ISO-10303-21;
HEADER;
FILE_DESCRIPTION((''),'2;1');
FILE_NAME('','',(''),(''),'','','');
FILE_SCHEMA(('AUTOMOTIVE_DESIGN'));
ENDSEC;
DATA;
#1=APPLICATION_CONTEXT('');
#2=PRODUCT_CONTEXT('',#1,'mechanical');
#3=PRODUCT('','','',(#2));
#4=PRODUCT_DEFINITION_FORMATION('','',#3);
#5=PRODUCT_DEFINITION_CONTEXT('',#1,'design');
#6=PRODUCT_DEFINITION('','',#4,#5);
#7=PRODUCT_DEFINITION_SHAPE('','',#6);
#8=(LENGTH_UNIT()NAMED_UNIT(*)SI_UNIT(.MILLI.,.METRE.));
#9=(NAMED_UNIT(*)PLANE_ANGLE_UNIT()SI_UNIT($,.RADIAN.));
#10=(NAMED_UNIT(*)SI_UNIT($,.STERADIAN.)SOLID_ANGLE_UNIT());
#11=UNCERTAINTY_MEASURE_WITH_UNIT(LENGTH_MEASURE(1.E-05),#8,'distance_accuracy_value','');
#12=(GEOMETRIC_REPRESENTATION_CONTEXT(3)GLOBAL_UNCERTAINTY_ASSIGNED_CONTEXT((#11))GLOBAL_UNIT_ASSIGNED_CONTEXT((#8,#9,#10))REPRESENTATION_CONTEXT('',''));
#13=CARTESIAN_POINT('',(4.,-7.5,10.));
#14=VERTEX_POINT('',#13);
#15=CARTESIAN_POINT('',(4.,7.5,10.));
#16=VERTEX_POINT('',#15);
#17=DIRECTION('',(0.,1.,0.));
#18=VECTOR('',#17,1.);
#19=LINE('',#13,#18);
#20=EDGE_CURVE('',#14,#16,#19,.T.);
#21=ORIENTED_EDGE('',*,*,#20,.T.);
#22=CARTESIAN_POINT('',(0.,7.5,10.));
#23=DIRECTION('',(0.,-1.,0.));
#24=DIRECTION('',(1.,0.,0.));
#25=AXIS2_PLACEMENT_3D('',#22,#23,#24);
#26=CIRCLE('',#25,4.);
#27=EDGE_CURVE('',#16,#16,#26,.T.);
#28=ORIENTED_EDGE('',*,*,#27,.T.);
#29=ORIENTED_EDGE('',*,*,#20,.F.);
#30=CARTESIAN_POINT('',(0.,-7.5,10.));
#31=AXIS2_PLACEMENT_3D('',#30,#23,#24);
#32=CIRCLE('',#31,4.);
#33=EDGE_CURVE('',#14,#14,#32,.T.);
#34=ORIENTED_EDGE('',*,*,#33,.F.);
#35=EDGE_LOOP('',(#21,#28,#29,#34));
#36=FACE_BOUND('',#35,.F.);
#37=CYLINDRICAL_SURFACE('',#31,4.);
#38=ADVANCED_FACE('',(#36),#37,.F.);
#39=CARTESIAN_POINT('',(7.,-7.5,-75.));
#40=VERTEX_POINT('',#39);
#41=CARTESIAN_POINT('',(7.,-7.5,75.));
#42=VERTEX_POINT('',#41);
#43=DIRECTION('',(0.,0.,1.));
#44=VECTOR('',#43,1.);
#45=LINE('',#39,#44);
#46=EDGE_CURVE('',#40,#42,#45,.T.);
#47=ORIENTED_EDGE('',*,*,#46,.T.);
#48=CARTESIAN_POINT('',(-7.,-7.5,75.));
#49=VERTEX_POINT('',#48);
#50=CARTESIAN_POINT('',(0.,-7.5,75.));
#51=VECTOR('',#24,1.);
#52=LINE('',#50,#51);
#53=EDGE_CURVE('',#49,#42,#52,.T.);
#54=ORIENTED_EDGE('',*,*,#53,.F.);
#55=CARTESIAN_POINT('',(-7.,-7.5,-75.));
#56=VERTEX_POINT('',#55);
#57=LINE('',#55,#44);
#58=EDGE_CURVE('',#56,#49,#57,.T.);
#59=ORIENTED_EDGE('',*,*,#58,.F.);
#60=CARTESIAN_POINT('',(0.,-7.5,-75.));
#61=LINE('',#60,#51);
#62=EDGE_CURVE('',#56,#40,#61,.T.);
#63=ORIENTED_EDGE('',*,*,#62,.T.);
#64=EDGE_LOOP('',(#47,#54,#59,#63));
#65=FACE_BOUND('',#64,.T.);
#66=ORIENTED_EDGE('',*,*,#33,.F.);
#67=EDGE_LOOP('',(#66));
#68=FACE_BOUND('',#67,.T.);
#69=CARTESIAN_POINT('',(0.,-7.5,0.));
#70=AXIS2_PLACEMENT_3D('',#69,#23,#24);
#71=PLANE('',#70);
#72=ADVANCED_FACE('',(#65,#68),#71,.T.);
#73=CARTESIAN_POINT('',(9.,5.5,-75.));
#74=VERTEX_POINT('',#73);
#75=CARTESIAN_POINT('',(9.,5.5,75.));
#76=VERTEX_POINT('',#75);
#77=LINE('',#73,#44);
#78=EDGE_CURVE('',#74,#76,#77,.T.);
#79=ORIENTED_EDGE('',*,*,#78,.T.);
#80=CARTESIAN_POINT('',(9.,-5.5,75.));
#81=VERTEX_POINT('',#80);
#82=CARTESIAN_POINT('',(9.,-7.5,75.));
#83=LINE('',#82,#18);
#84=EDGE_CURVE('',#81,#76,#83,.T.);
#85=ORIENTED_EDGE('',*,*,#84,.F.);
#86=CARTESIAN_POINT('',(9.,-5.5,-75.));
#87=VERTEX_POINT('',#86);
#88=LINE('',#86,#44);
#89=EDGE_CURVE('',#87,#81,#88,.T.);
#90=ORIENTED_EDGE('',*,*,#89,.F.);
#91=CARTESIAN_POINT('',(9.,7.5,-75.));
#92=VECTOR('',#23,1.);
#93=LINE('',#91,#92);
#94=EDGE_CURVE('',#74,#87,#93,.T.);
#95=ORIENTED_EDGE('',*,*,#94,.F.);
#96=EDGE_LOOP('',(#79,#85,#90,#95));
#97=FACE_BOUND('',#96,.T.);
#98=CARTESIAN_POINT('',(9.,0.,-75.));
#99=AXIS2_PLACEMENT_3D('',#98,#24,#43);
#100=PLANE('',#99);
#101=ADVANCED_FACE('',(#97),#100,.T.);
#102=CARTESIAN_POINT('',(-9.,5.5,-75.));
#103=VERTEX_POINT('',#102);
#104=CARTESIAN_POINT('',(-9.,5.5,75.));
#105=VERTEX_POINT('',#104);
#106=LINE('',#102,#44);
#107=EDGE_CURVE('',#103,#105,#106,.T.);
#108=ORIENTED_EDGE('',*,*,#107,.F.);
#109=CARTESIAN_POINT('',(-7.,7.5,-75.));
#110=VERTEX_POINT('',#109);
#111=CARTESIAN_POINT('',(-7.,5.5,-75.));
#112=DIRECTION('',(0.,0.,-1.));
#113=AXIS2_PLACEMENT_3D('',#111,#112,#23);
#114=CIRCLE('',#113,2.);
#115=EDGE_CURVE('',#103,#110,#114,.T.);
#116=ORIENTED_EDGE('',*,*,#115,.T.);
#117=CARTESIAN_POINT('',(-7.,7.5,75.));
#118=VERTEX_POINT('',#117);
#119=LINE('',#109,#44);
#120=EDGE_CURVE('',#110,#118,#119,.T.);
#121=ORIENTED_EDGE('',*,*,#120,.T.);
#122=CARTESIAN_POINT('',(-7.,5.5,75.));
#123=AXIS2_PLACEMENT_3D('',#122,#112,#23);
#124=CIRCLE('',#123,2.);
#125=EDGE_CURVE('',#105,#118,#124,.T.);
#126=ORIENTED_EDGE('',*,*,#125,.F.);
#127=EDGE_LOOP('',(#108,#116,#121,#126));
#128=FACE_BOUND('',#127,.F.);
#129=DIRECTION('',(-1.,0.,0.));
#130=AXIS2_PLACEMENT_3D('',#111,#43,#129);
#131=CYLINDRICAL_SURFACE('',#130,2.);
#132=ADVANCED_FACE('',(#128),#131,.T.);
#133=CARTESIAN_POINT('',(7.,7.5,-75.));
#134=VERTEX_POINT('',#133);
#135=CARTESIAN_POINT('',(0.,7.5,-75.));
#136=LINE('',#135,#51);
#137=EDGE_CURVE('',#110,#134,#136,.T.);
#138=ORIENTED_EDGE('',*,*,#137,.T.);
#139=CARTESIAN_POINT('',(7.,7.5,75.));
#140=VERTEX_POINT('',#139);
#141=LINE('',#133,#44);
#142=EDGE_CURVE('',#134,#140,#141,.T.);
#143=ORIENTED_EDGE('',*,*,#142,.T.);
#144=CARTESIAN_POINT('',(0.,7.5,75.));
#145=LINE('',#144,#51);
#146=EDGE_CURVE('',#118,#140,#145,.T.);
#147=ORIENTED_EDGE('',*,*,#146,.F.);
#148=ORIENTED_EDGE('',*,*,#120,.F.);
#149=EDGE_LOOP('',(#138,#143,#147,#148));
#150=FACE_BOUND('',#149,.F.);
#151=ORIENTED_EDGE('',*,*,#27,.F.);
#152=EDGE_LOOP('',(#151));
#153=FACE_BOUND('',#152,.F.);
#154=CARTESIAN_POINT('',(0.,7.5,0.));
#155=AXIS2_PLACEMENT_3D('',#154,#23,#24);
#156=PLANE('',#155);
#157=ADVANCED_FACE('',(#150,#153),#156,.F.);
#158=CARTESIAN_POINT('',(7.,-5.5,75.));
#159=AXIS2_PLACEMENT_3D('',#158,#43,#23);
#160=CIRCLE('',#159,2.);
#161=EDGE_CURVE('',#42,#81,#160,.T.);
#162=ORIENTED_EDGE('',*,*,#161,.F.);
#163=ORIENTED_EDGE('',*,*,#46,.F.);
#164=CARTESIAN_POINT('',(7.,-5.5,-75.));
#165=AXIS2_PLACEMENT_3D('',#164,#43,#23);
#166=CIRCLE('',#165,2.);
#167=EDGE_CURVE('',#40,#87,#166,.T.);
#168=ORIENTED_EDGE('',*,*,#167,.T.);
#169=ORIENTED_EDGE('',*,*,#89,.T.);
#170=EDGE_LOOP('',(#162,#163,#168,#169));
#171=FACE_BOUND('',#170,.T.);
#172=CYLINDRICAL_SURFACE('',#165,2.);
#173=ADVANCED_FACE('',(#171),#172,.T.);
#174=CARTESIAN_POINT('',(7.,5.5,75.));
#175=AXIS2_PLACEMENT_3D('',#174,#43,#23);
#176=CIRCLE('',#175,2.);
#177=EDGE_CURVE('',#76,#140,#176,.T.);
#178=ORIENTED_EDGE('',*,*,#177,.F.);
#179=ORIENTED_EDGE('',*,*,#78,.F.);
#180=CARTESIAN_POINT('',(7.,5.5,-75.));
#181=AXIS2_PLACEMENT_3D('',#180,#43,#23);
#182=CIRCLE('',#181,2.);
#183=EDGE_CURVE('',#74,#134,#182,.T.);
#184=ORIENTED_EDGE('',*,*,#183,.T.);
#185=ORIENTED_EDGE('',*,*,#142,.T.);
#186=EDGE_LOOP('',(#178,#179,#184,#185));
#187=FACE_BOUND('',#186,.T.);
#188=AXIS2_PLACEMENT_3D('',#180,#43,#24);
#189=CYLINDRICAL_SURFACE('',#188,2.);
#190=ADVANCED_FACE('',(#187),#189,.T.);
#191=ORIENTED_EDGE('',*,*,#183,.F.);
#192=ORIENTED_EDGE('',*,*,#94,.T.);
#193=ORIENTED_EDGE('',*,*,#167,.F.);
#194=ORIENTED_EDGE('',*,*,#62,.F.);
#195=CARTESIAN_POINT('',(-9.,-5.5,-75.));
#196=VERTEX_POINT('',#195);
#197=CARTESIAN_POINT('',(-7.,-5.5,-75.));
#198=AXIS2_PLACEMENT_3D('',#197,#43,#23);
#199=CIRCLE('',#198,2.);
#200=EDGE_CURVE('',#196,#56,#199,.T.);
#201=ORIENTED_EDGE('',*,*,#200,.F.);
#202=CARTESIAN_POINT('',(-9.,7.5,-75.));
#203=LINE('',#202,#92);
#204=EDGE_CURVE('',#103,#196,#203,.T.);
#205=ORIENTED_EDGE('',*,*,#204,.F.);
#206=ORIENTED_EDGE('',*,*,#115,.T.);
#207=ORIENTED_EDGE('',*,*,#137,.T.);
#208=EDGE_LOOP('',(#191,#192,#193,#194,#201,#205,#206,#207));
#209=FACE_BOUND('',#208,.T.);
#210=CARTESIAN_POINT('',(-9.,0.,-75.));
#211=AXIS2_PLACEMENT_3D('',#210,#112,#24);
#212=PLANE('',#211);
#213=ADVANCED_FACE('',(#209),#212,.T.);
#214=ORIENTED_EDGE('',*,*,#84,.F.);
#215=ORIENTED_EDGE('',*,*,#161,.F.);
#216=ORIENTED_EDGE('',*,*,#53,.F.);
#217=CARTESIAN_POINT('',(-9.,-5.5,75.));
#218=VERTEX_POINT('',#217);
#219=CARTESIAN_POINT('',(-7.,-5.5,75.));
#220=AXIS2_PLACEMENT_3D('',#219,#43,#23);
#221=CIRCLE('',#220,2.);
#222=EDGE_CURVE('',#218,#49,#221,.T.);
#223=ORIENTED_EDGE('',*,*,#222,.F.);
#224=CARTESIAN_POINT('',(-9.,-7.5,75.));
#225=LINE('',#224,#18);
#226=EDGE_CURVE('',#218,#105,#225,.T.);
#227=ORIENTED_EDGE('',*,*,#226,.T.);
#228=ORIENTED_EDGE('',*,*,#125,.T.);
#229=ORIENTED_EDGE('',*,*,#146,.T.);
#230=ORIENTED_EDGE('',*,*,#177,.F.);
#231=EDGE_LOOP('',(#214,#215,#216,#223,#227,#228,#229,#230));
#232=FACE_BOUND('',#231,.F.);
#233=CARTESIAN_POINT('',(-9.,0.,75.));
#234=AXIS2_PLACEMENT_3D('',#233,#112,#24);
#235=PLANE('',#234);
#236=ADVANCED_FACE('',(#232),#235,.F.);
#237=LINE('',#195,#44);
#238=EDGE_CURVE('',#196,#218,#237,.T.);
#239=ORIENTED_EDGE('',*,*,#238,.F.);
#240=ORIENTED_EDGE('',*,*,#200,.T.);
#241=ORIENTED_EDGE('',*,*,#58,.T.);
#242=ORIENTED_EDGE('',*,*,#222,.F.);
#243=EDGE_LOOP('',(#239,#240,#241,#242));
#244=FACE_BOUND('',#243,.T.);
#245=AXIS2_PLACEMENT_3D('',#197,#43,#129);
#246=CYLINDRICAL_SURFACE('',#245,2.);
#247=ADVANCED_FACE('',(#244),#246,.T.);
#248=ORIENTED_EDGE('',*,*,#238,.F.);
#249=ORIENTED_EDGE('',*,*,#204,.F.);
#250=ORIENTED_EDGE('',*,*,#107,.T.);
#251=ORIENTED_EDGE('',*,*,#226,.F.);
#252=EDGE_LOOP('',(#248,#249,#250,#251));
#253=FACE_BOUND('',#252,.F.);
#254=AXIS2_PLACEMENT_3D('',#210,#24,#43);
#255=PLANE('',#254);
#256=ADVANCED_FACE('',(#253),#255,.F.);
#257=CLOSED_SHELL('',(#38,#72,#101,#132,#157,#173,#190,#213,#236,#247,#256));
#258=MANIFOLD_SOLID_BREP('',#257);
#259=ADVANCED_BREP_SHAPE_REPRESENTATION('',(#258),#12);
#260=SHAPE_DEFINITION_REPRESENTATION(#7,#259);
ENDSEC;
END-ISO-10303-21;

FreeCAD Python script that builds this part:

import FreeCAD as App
import Part
import Sketcher
Q = App.Units.Quantity


def edges_at(feature, points):
    """Names of the edges that pass closest to the given points."""
    edges = feature.Shape.Edges
    near = lambda p: min(range(len(edges)), key=lambda i: edges[i].distToShape(Part.Vertex(*p))[0])
    return sorted({f"Edge{near(p) + 1}" for p in points})


def add_polygon(sketch, points):
    """Adds a closed chain of lines whose ends are joined by coincident constraints."""
    first, n = sketch.GeometryCount, len(points)
    for a, b in zip(points, points[1:] + points[:1]):
        sketch.addGeometry(Part.LineSegment(App.Vector(*a, 0), App.Vector(*b, 0)), False)
    for i in range(n):
        sketch.addConstraint(Sketcher.Constraint("Coincident", first + i, 2, first + (i + 1) % n, 1))

doc = App.newDocument("Part")
body = doc.addObject("PartDesign::Body", "Body")

# Sketch on XZ plane
sketch1 = doc.addObject("Sketcher::SketchObject", "Sketch")
body.addObject(sketch1)
sketch1.AttachmentSupport = (doc.XZ_Plane, [""])
sketch1.MapMode = "FlatFace"
add_polygon(sketch1, [(-9, 75), (-9, -75), (9, -75), (9, 75)])  # lines 0-3
sketch1.addConstraint([
    Sketcher.Constraint("Vertical", 0),
    Sketcher.Constraint("Horizontal", 1),
    Sketcher.Constraint("Vertical", 2),
    Sketcher.Constraint("Horizontal", 3),
    Sketcher.Constraint("Symmetric", 0, 2, 2, 2, -1, 1),
    Sketcher.Constraint("DistanceX", 1, 1, 1, 2, Q("18 mm")),
    Sketcher.Constraint("DistanceY", 0, 2, 0, 1, Q("150 mm")),
])
pad1 = doc.addObject("PartDesign::Pad", "Pad")
body.addObject(pad1)
pad1.Profile = sketch1
pad1.Length = 15
pad1.Midplane = True
doc.recompute()

fillet = doc.addObject("PartDesign::Fillet", "Fillet")
body.addObject(fillet)
fillet.Base = (pad1, edges_at(pad1, [
    (-9, -7.5, 0),
    (9, -7.5, 0),
    (9, 7.5, 0),
    (-9, 7.5, 0),
]))
fillet.Radius = 2

# Sketch on XZ plane
sketch2 = doc.addObject("Sketcher::SketchObject", "Sketch001")
body.addObject(sketch2)
sketch2.AttachmentSupport = (doc.XZ_Plane, [""])
sketch2.MapMode = "FlatFace"
sketch2.AttachmentOffset = App.Placement(App.Vector(0, 0, 7.5), App.Rotation())
sketch2.addGeometry(Part.Circle(App.Vector(0, 10, 0), App.Vector(0, 0, 1), 4), False)
sketch2.addConstraint([
    Sketcher.Constraint("PointOnObject", 0, 3, -2),
    Sketcher.Constraint("Diameter", 0, Q("8 mm")),
    Sketcher.Constraint("DistanceY", -1, 1, 0, 3, Q("10 mm")),
])
pocket1 = doc.addObject("PartDesign::Pocket", "Pocket")
body.addObject(pocket1)
pocket1.Profile = sketch2
pocket1.Length = 25.4

doc.recompute()
